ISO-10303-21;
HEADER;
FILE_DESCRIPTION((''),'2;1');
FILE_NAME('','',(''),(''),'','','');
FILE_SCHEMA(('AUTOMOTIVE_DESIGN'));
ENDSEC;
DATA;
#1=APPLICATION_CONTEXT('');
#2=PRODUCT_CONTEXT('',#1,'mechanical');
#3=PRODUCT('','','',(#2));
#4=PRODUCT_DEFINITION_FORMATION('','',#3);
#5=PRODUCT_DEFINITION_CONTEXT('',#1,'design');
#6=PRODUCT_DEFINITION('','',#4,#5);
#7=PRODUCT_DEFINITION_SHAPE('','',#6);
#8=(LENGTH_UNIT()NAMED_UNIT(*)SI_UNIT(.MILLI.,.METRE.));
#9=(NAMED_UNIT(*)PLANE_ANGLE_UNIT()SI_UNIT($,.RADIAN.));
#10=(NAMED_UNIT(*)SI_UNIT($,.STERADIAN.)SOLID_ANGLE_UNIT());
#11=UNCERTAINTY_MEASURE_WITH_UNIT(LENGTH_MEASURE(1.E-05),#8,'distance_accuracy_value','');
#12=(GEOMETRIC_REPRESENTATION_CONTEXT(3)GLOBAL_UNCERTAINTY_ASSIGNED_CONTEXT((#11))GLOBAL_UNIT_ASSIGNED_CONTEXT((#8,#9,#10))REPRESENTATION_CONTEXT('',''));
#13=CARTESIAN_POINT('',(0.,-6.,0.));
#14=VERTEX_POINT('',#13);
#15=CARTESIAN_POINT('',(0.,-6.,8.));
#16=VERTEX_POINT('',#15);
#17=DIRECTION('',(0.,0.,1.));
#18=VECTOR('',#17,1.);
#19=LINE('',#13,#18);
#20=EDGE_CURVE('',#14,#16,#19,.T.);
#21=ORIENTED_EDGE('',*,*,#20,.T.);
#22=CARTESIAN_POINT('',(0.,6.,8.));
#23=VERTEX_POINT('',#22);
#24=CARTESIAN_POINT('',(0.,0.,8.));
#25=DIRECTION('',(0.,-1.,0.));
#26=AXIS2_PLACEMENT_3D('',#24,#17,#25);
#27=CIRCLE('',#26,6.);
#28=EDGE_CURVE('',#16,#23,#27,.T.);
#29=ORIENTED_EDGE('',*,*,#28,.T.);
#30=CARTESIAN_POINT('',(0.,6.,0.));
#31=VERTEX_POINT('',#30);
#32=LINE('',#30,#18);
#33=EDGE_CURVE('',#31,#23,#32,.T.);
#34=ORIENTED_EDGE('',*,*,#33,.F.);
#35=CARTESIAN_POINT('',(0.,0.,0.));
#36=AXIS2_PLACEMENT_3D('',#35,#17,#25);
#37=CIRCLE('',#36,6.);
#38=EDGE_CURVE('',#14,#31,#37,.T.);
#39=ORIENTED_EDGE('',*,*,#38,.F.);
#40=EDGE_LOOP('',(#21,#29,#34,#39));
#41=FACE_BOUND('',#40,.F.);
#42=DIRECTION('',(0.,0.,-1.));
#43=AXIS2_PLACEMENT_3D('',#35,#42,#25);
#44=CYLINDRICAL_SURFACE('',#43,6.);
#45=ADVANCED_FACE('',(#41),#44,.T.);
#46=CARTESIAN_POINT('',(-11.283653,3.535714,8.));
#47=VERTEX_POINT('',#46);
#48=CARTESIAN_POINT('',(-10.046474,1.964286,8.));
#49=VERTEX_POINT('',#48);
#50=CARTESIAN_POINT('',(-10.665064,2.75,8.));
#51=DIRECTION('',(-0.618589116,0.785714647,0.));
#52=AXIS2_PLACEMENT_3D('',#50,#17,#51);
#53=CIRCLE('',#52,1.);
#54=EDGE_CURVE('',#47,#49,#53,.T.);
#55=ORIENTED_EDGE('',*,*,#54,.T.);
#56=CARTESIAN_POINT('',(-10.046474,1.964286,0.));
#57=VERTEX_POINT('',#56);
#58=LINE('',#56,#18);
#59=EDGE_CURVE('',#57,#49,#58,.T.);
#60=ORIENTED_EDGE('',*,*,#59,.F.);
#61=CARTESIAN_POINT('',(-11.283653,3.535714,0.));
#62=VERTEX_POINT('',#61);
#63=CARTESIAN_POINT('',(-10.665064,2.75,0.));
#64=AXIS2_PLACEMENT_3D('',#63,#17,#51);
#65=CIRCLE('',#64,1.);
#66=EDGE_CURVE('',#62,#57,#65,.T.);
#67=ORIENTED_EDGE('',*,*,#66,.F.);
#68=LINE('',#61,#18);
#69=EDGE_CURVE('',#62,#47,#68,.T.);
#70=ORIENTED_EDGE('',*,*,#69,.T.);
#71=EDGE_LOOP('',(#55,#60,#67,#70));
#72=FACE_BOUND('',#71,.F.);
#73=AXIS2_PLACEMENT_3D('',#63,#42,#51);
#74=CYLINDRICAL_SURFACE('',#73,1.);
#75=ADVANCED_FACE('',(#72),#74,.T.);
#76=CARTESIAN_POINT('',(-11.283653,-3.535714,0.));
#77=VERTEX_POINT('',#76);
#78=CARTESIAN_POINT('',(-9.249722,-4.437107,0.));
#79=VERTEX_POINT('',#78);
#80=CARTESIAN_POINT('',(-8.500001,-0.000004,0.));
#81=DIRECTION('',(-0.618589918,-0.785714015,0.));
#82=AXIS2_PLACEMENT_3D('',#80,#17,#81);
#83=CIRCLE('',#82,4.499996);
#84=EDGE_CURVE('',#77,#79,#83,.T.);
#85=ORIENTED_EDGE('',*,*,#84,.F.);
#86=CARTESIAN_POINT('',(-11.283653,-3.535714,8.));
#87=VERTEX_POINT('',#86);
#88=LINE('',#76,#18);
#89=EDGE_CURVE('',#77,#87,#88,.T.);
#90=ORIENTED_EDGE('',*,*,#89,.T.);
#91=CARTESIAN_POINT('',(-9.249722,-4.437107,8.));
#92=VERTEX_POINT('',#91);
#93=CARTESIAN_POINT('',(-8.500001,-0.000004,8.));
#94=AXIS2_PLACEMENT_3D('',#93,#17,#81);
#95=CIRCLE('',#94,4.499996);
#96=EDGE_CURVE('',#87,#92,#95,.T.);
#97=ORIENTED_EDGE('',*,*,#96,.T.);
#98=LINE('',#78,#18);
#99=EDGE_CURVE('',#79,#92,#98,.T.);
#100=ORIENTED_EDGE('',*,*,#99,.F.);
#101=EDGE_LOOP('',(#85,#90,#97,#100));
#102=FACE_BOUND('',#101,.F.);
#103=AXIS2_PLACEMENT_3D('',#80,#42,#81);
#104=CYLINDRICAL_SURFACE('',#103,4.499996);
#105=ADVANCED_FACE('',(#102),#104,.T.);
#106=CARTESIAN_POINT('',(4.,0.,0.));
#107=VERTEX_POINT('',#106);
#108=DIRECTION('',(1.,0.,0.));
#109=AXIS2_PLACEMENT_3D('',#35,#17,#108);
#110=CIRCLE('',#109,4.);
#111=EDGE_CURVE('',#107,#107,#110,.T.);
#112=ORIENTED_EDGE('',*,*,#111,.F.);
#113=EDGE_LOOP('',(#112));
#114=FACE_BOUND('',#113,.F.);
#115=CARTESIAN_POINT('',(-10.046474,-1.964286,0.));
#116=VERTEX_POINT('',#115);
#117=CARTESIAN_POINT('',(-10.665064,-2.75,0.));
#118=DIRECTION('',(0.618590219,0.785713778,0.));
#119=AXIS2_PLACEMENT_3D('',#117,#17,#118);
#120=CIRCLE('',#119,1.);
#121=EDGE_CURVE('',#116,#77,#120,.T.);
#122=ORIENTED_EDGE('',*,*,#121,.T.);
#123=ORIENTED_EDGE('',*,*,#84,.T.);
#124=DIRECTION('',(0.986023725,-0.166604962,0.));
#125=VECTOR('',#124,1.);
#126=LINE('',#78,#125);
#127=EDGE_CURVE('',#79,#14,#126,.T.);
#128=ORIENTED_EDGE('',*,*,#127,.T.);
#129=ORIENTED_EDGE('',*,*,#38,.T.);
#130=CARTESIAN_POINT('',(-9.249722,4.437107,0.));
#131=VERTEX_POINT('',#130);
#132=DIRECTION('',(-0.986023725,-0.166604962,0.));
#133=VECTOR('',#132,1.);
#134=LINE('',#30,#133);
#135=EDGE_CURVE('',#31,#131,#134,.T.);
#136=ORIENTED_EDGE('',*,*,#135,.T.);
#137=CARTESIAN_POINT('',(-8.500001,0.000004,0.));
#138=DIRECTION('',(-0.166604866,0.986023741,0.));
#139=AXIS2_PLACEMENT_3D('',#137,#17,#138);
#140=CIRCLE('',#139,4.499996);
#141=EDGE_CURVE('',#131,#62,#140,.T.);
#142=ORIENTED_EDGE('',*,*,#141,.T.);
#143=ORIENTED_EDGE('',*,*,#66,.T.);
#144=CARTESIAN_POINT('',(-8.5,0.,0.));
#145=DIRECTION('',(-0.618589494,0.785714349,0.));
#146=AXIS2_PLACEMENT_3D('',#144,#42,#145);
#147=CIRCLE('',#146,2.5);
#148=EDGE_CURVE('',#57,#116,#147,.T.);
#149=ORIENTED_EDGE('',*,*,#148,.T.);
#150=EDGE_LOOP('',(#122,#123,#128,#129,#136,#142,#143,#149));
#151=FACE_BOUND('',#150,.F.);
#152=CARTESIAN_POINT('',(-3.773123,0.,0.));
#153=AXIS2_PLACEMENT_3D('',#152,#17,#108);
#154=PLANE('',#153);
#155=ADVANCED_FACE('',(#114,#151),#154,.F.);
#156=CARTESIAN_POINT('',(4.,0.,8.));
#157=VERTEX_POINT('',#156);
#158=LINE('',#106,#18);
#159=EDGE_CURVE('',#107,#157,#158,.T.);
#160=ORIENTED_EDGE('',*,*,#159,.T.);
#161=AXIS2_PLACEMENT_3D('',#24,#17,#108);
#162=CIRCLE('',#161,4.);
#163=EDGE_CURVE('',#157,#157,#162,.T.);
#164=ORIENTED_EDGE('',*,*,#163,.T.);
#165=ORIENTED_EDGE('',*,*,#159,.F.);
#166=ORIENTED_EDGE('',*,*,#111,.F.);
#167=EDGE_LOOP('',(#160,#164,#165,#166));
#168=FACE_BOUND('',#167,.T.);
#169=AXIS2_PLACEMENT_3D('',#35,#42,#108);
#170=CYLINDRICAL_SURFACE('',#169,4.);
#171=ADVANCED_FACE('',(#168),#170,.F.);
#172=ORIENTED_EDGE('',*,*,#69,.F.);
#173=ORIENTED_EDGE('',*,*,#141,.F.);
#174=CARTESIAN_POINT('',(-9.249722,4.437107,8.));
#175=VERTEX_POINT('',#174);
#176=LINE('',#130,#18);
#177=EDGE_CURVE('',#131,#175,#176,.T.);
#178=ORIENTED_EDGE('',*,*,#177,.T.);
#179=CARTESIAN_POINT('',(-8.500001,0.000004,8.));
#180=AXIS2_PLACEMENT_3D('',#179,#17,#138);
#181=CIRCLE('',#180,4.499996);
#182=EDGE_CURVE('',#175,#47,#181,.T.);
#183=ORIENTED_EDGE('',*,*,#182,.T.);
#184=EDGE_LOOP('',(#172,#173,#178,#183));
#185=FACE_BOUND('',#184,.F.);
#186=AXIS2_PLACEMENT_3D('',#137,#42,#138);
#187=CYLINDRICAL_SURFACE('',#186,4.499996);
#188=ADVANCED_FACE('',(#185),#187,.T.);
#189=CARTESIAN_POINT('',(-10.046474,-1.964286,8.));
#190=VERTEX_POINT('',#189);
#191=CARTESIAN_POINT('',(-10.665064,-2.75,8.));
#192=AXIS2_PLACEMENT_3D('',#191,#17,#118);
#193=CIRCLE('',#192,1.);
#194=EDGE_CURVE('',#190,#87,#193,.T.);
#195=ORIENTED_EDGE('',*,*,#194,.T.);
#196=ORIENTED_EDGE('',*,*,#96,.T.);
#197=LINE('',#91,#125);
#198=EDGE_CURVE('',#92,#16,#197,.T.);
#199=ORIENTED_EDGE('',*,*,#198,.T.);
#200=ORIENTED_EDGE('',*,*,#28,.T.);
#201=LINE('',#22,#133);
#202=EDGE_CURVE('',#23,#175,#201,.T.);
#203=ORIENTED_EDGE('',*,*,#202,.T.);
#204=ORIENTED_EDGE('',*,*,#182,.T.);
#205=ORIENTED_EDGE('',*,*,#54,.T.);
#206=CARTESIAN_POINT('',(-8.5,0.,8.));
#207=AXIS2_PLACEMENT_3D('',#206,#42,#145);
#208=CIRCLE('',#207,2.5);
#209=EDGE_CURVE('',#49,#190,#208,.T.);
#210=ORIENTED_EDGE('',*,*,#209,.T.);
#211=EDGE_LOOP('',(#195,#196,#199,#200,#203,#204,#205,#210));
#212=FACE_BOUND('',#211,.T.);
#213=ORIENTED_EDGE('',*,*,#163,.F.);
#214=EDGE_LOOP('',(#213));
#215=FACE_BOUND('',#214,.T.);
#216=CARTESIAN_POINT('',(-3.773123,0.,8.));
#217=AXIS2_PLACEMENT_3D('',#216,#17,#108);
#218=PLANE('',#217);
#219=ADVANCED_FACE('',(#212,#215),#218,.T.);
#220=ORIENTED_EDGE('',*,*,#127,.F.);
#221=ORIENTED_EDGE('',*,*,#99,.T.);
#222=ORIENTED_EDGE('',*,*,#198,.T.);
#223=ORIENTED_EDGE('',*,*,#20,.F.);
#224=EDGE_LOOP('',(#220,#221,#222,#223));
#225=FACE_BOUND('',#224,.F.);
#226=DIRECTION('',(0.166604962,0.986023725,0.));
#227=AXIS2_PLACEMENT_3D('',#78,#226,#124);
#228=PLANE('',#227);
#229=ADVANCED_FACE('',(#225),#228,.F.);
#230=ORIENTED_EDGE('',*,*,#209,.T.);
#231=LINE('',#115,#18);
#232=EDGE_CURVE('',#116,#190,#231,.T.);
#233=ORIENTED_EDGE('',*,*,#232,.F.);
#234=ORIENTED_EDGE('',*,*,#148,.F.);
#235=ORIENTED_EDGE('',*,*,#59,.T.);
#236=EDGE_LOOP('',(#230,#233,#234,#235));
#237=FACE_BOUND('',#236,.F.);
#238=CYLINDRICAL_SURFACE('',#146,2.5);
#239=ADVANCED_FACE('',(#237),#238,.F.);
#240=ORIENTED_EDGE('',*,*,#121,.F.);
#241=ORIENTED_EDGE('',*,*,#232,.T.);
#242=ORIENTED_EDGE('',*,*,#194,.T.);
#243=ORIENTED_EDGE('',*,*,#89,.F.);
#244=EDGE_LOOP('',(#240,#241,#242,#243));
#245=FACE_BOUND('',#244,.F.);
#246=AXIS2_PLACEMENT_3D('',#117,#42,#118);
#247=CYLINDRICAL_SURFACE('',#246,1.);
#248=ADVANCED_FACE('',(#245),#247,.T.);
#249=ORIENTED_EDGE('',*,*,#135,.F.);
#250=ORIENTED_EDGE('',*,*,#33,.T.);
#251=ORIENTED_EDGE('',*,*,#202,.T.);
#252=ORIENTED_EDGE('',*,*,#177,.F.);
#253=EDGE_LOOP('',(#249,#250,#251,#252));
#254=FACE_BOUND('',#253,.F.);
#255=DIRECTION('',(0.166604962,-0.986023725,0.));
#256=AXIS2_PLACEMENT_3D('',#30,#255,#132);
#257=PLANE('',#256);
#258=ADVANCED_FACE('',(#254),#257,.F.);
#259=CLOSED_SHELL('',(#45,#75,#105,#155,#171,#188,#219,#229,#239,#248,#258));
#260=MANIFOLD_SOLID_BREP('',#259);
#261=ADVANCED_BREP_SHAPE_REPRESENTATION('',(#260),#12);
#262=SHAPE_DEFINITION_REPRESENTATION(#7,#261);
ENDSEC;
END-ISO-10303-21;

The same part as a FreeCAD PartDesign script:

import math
import FreeCAD as App
import Part
import Sketcher
from FreeCAD import Vector
Q = App.Units.Quantity

doc = App.newDocument("Part")
body = doc.addObject("PartDesign::Body", "Body")

sketch1 = body.newObject("Sketcher::SketchObject", "Sketch")
sketch1.AttachmentSupport = (doc.getObject("XY_Plane"), [""])
sketch1.MapMode = "FlatFace"
sketch1.addGeometry(Part.LineSegment(Vector(-9.249722, -4.437107, 0), Vector(0, -6, 0)), False)
sketch1.addGeometry(Part.ArcOfCircle(Part.Circle(Vector(0, 0, 0), Vector(0, 0, 1), 6), math.radians(-90), math.radians(90)), False)
sketch1.addGeometry(Part.LineSegment(Vector(0, 6, 0), Vector(-9.249722, 4.437107, 0)), False)
sketch1.addGeometry(Part.ArcOfCircle(Part.Circle(Vector(-8.500001, 0.000004, 0), Vector(0, 0, 1), 4.499996), math.radians(99.590477), math.radians(128.213236)), False)
sketch1.addGeometry(Part.ArcOfCircle(Part.Circle(Vector(-10.665064, 2.75, 0), Vector(0, 0, 1), 1), math.radians(128.213177), math.radians(308.213258)), False)
sketch1.addGeometry(Part.ArcOfCircle(Part.Circle(Vector(-8.5, 0, 0), Vector(0, 0, 1), 2.5), math.radians(-128.213205), math.radians(128.213205)), False)
sketch1.addGeometry(Part.ArcOfCircle(Part.Circle(Vector(-10.665064, -2.75, 0), Vector(0, 0, 1), 1), math.radians(51.786742), math.radians(231.786823)), False)
sketch1.addGeometry(Part.ArcOfCircle(Part.Circle(Vector(-8.500001, -0.000004, 0), Vector(0, 0, 1), 4.499996), math.radians(-128.213236), math.radians(-99.590477)), False)
sketch1.addGeometry(Part.Circle(Vector(0, 0, 0), Vector(0, 0, 1), 4), False)
sketch1.addConstraint(Sketcher.Constraint("Coincident", 0, 2, 1, 1))
sketch1.addConstraint(Sketcher.Constraint("Coincident", 1, 2, 2, 1))
sketch1.addConstraint(Sketcher.Constraint("Tangent", 2, 2, 3, 1))
sketch1.addConstraint(Sketcher.Constraint("Tangent", 3, 2, 4, 1))
sketch1.addConstraint(Sketcher.Constraint("Tangent", 4, 2, 5, 2))
sketch1.addConstraint(Sketcher.Constraint("Tangent", 5, 1, 6, 1))
sketch1.addConstraint(Sketcher.Constraint("Tangent", 6, 2, 7, 1))
sketch1.addConstraint(Sketcher.Constraint("Tangent", 7, 2, 0, 1))
sketch1.addConstraint(Sketcher.Constraint("Coincident", 1, 3, -1, 1))
sketch1.addConstraint(Sketcher.Constraint("Coincident", 8, 3, -1, 1))
sketch1.addConstraint(Sketcher.Constraint("Coincident", 5, 3, 3, 3))
sketch1.addConstraint(Sketcher.Constraint("Coincident", 7, 3, 3, 3))
sketch1.addConstraint(Sketcher.Constraint("Equal", 4, 6))
sketch1.addConstraint(Sketcher.Constraint("Symmetric", 4, 3, 6, 3, -1))
sketch1.addConstraint(Sketcher.Constraint("PointOnObject", 0, 2, -2))
sketch1.addConstraint(Sketcher.Constraint("PointOnObject", 1, 2, -2))
sketch1.addConstraint(Sketcher.Constraint("Diameter", 8, Q("8 mm")))
sketch1.addConstraint(Sketcher.Constraint("Radius", 1, Q("6 mm")))
sketch1.addConstraint(Sketcher.Constraint("Radius", 4, Q("1 mm")))
sketch1.addConstraint(Sketcher.Constraint("Radius", 5, Q("2.5 mm")))
sketch1.addConstraint(Sketcher.Constraint("DistanceX", 3, 3, -1, 1, Q("8.500001 mm")))
sketch1.addConstraint(Sketcher.Constraint("DistanceY", 6, 3, 4, 3, Q("5.499999 mm")))
pad1 = body.newObject("PartDesign::Pad", "Pad")
pad1.Profile = sketch1
pad1.Length = 8

doc.recompute()
